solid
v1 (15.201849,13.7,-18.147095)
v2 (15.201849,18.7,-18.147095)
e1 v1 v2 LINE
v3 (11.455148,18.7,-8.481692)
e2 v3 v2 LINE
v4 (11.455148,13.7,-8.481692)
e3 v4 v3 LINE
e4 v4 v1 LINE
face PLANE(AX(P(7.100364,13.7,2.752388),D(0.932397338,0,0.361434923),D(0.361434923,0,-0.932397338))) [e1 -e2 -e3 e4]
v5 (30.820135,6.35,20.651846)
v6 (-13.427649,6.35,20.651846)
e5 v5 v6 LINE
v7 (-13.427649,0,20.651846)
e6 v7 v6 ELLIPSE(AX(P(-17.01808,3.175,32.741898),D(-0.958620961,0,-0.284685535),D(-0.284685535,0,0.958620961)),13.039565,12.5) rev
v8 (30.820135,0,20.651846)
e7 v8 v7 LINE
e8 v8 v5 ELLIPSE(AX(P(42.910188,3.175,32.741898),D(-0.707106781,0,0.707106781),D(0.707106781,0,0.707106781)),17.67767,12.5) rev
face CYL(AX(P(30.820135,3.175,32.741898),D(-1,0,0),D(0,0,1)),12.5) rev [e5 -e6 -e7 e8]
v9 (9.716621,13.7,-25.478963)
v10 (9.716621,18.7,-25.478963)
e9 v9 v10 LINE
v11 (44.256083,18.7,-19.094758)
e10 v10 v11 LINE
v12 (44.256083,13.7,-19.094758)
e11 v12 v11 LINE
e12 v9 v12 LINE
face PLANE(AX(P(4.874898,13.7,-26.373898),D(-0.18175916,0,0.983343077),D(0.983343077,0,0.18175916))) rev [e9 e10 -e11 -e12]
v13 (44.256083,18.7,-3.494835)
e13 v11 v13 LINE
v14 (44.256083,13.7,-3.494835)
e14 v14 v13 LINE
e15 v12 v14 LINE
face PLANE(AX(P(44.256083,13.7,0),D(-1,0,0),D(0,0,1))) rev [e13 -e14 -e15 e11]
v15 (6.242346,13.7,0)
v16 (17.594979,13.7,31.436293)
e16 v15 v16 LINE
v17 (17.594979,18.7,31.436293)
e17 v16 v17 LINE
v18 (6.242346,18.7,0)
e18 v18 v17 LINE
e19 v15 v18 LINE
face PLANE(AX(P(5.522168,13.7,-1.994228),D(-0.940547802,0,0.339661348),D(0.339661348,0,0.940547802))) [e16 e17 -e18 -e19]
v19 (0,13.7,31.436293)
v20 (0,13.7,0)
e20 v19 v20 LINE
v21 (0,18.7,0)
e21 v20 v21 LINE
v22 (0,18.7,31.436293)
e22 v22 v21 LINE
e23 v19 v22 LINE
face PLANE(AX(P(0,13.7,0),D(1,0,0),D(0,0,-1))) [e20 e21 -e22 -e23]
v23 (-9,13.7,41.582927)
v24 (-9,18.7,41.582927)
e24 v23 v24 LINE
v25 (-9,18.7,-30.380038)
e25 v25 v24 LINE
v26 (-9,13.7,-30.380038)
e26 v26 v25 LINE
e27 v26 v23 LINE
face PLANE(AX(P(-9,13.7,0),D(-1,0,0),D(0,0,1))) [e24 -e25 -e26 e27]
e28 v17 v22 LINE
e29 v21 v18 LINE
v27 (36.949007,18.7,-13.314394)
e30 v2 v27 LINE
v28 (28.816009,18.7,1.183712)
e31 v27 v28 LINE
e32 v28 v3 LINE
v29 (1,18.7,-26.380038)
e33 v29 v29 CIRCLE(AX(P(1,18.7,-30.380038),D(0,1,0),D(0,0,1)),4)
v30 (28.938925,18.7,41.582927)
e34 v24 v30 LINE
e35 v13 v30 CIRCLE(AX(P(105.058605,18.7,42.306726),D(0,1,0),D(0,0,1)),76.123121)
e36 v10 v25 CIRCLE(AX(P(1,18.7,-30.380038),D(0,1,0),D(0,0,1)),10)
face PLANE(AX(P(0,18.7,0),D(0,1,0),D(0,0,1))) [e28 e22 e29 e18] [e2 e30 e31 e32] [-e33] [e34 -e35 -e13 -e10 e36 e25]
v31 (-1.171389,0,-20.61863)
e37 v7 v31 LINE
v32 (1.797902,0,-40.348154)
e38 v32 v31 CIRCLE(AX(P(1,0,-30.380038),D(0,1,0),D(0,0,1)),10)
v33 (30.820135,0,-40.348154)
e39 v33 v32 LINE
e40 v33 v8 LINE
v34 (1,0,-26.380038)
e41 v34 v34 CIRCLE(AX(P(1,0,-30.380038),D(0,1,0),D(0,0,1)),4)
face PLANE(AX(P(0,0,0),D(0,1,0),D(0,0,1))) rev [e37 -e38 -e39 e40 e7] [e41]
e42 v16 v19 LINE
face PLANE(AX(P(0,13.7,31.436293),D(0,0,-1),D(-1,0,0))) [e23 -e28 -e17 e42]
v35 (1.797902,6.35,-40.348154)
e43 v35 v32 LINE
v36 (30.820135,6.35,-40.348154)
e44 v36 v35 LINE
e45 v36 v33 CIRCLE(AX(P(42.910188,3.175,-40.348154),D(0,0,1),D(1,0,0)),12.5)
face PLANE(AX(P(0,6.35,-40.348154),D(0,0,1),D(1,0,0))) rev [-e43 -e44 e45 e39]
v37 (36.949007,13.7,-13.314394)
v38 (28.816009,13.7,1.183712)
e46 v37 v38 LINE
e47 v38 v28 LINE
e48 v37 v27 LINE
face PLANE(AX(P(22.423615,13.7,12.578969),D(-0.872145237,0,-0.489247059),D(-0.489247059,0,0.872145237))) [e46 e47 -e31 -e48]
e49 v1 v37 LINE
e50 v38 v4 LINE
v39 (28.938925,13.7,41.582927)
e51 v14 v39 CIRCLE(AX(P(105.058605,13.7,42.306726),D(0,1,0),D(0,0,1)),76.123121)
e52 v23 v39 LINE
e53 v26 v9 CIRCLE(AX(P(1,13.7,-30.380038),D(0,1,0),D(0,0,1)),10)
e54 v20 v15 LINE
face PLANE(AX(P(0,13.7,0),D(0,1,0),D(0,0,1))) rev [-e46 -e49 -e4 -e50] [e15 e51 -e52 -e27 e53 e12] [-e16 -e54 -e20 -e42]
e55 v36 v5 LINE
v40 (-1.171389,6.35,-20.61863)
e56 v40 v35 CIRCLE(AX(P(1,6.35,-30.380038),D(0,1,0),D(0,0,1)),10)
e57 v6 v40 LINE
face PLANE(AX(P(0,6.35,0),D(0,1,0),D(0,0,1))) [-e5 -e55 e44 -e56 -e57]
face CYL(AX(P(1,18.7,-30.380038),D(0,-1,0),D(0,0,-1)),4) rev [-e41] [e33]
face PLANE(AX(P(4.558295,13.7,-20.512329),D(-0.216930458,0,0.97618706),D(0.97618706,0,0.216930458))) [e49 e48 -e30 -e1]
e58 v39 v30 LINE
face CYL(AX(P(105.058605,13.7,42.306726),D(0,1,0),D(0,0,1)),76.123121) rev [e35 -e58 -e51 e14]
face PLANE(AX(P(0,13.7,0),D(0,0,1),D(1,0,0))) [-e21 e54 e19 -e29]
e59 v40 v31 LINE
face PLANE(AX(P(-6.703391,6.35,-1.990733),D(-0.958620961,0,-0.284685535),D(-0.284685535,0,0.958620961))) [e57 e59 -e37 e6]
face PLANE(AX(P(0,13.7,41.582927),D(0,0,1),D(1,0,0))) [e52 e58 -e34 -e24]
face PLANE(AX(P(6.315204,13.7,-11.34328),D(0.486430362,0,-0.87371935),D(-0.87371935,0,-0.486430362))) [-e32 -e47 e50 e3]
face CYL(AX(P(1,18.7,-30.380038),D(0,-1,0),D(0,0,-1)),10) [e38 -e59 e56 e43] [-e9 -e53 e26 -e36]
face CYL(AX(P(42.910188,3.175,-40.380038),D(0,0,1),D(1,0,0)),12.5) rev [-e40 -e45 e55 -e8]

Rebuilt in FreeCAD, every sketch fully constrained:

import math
import FreeCAD as App
import Part
import Sketcher
Q = App.Units.Quantity


def add_polygon(sketch, points):
    """Adds a closed chain of lines whose ends are joined by coincident constraints."""
    first, n = sketch.GeometryCount, len(points)
    for a, b in zip(points, points[1:] + points[:1]):
        sketch.addGeometry(Part.LineSegment(App.Vector(*a, 0), App.Vector(*b, 0)), False)
    for i in range(n):
        sketch.addConstraint(Sketcher.Constraint("Coincident", first + i, 2, first + (i + 1) % n, 1))

doc = App.newDocument("Part")
body = doc.addObject("PartDesign::Body", "Body")

sketch1 = doc.addObject("Sketcher::SketchObject", "Sketch")
body.addObject(sketch1)
sketch1.AttachmentSupport = (doc.XZ_Plane, [""])
sketch1.MapMode = "FlatFace"
sketch1.addGeometry(Part.LineSegment(App.Vector(31, 21, 0), App.Vector(31, -40, 0)), False)
sketch1.addGeometry(Part.LineSegment(App.Vector(31, -40, 0), App.Vector(2, -40, 0)), False)
sketch1.addGeometry(Part.ArcOfCircle(Part.Circle(App.Vector(1, -30, 0), App.Vector(0, 0, 1), 10), math.radians(-85), math.radians(0)), False)
sketch1.addGeometry(Part.ArcOfCircle(Part.Circle(App.Vector(1, -30, 0), App.Vector(0, 0, 1), 10), math.radians(0), math.radians(103)), False)
sketch1.addGeometry(Part.LineSegment(App.Vector(-1, -21, 0), App.Vector(-13, 21, 0)), False)
sketch1.addGeometry(Part.LineSegment(App.Vector(-13, 21, 0), App.Vector(31, 21, 0)), False)
sketch1.addConstraint(Sketcher.Constraint("Coincident", 0, 2, 1, 1))
sketch1.addConstraint(Sketcher.Constraint("Coincident", 1, 2, 2, 1))
sketch1.addConstraint(Sketcher.Constraint("Tangent", 2, 2, 3, 1))
sketch1.addConstraint(Sketcher.Constraint("Coincident", 3, 2, 4, 1))
sketch1.addConstraint(Sketcher.Constraint("Coincident", 4, 2, 5, 1))
sketch1.addConstraint(Sketcher.Constraint("Coincident", 5, 2, 0, 1))
sketch1.addConstraint(Sketcher.Constraint("Vertical", 0))
sketch1.addConstraint(Sketcher.Constraint("Horizontal", 1))
sketch1.addConstraint(Sketcher.Constraint("Horizontal", 5))
sketch1.addConstraint(Sketcher.Constraint("Equal", 2, 3))
sketch1.addConstraint(Sketcher.Constraint("Horizontal", 3, 3, 2, 2))
sketch1.addConstraint(Sketcher.Constraint("Radius", 2, Q("10 mm")))
sketch1.addConstraint(Sketcher.Constraint("DistanceY", 0, 2, 0, 1, Q("61 mm")))
sketch1.addConstraint(Sketcher.Constraint("DistanceX", -1, 1, 2, 3, Q("1 mm")))
sketch1.addConstraint(Sketcher.Constraint("DistanceX", -1, 1, 1, 2, Q("1.797902 mm")))
sketch1.addConstraint(Sketcher.Constraint("DistanceX", 1, 2, 1, 1, Q("29.022233 mm")))
sketch1.addConstraint(Sketcher.Constraint("DistanceX", 5, 1, 5, 2, Q("44.247784 mm")))
sketch1.addConstraint(Sketcher.Constraint("DistanceX", 3, 2, -1, 1, Q("1.171389 mm")))
sketch1.addConstraint(Sketcher.Constraint("DistanceY", 3, 2, -1, 1, Q("20.61863 mm")))
pad1 = doc.addObject("PartDesign::Pad", "Pad")
body.addObject(pad1)
pad1.Profile = sketch1
pad1.Length = 6.35
pad1.Reversed = True

sketch2 = doc.addObject("Sketcher::SketchObject", "Sketch001")
body.addObject(sketch2)
sketch2.AttachmentSupport = (doc.XZ_Plane, [""])
sketch2.MapMode = "FlatFace"
sketch2.addGeometry(Part.Circle(App.Vector(1, -30.4, 0), App.Vector(0, 0, 1), 10), False)
sketch2.addGeometry(Part.Circle(App.Vector(1, -30.4, 0), App.Vector(0, 0, 1), 4), False)
sketch2.addConstraint(Sketcher.Constraint("Coincident", 1, 3, 0, 3))
sketch2.addConstraint(Sketcher.Constraint("Diameter", 0, Q("20 mm")))
sketch2.addConstraint(Sketcher.Constraint("Diameter", 1, Q("8 mm")))
sketch2.addConstraint(Sketcher.Constraint("DistanceX", -1, 1, 0, 3, Q("1 mm")))
sketch2.addConstraint(Sketcher.Constraint("DistanceY", 0, 3, -1, 1, Q("30.380038 mm")))
pad2 = doc.addObject("PartDesign::Pad", "Pad001")
body.addObject(pad2)
pad2.Profile = sketch2
pad2.Length = 18.7
pad2.Reversed = True

sketch3 = doc.addObject("Sketcher::SketchObject", "Sketch002")
body.addObject(sketch3)
sketch3.AttachmentSupport = (doc.XY_Plane, [""])
sketch3.MapMode = "FlatFace"
sketch3.addGeometry(Part.Circle(App.Vector(43, 3, 0), App.Vector(0, 0, 1), 12), False)
sketch3.addConstraint(Sketcher.Constraint("Diameter", 0, Q("25 mm")))
sketch3.addConstraint(Sketcher.Constraint("DistanceY", -1, 1, 0, 3, Q("3.175 mm")))
sketch3.addConstraint(Sketcher.Constraint("DistanceX", -1, 1, 0, 3, Q("42.910188 mm")))
pocket1 = doc.addObject("PartDesign::Pocket", "Pocket")
body.addObject(pocket1)
pocket1.Profile = sketch3
pocket1.Type = "ThroughAll"
pocket1.Midplane = True

sketch4 = doc.addObject("Sketcher::SketchObject", "Sketch003")
body.addObject(sketch4)
sketch4.AttachmentSupport = (doc.YZ_Plane, [""])
sketch4.MapMode = "FlatFace"
sketch4.addGeometry(Part.Circle(App.Vector(3, 33, 0), App.Vector(0, 0, 1), 12), False)
sketch4.addConstraint(Sketcher.Constraint("Diameter", 0, Q("25 mm")))
sketch4.addConstraint(Sketcher.Constraint("DistanceX", -1, 1, 0, 3, Q("3.175 mm")))
sketch4.addConstraint(Sketcher.Constraint("DistanceY", -1, 1, 0, 3, Q("32.741898 mm")))
pocket2 = doc.addObject("PartDesign::Pocket", "Pocket001")
body.addObject(pocket2)
pocket2.Profile = sketch4
pocket2.Type = "ThroughAll"
pocket2.Midplane = True

sketch5 = doc.addObject("Sketcher::SketchObject", "Sketch004")
body.addObject(sketch5)
sketch5.AttachmentSupport = (doc.XZ_Plane, [""])
sketch5.MapMode = "FlatFace"
sketch5.AttachmentOffset = App.Placement(App.Vector(0, 0, -13.7), App.Rotation())
sketch5.addGeometry(Part.ArcOfCircle(Part.Circle(App.Vector(1, -30, 0), App.Vector(0, 0, 1), 10), math.radians(29), math.radians(180)), False)
sketch5.addGeometry(Part.LineSegment(App.Vector(-9, -30, 0), App.Vector(-9, 42, 0)), False)
sketch5.addGeometry(Part.LineSegment(App.Vector(-9, 42, 0), App.Vector(29, 42, 0)), False)
sketch5.addGeometry(Part.ArcOfCircle(Part.Circle(App.Vector(105, 42, 0), App.Vector(0, 0, 1), 76), math.radians(-179), math.radians(-143)), False)
sketch5.addGeometry(Part.LineSegment(App.Vector(44, -3, 0), App.Vector(44, -19, 0)), False)
sketch5.addGeometry(Part.LineSegment(App.Vector(44, -19, 0), App.Vector(10, -25, 0)), False)
add_polygon(sketch5, [(6, 0), (18, 31), (0, 31), (0, 0)])
add_polygon(sketch5, [(37, -13), (29, 1), (11, -8), (15, -18)])
sketch5.addConstraint(Sketcher.Constraint("Tangent", 0, 2, 1, 1))
sketch5.addConstraint(Sketcher.Constraint("Coincident", 1, 2, 2, 1))
sketch5.addConstraint(Sketcher.Constraint("Coincident", 2, 2, 3, 1))
sketch5.addConstraint(Sketcher.Constraint("Coincident", 3, 2, 4, 1))
sketch5.addConstraint(Sketcher.Constraint("Coincident", 4, 2, 5, 1))
sketch5.addConstraint(Sketcher.Constraint("Coincident", 5, 2, 0, 1))
sketch5.addConstraint(Sketcher.Constraint("Vertical", 1))
sketch5.addConstraint(Sketcher.Constraint("Horizontal", 2))
sketch5.addConstraint(Sketcher.Constraint("Vertical", 4))
sketch5.addConstraint(Sketcher.Constraint("Horizontal", 7))
sketch5.addConstraint(Sketcher.Constraint("Vertical", 8))
sketch5.addConstraint(Sketcher.Constraint("Horizontal", 9))
sketch5.addConstraint(Sketcher.Constraint("Coincident", 8, 2, -1, 1))
sketch5.addConstraint(Sketcher.Constraint("Radius", 0, Q("10 mm")))
sketch5.addConstraint(Sketcher.Constraint("DistanceX", -1, 1, 0, 3, Q("1 mm")))
sketch5.addConstraint(Sketcher.Constraint("Radius", 3, Q("76.123121 mm")))
sketch5.addConstraint(Sketcher.Constraint("Distance", 10, Q("16.623499 mm")))
sketch5.addConstraint(Sketcher.Constraint("DistanceX", 7, 2, 7, 1, Q("17.594979 mm")))
sketch5.addConstraint(Sketcher.Constraint("DistanceY", 1, 2, 3, 3, Q("0.7238 mm")))
sketch5.addConstraint(Sketcher.Constraint("DistanceX", 9, 2, 11, 2, Q("5.212802 mm")))
sketch5.addConstraint(Sketcher.Constraint("DistanceX", 11, 2, 12, 2, Q("3.746701 mm")))
sketch5.addConstraint(Sketcher.Constraint("DistanceY", 12, 2, 13, 2, Q("4.832702 mm")))
sketch5.addConstraint(Sketcher.Constraint("DistanceY", 13, 2, 11, 2, Q("4.832702 mm")))
sketch5.addConstraint(Sketcher.Constraint("Distance", 5, Q("35.124529 mm")))
sketch5.addConstraint(Sketcher.Constraint("DistanceX", 2, 1, 2, 2, Q("37.938924 mm")))
sketch5.addConstraint(Sketcher.Constraint("DistanceX", 9, 1, 9, 2, Q("6.242346 mm")))
sketch5.addConstraint(Sketcher.Constraint("DistanceY", 1, 1, 1, 2, Q("71.962964 mm")))
sketch5.addConstraint(Sketcher.Constraint("DistanceY", 4, 2, 4, 1, Q("15.599924 mm")))
sketch5.addConstraint(Sketcher.Constraint("DistanceY", 8, 2, 8, 1, Q("31.436293 mm")))
sketch5.addConstraint(Sketcher.Constraint("DistanceY", 4, 2, -1, 1, Q("19.094758 mm")))
sketch5.addConstraint(Sketcher.Constraint("DistanceX", -1, 1, 5, 2, Q("9.716621 mm")))
sketch5.addConstraint(Sketcher.Constraint("DistanceX", -1, 1, 10, 2, Q("28.816009 mm")))
sketch5.addConstraint(Sketcher.Constraint("DistanceY", -1, 1, 10, 2, Q("1.183712 mm")))
sketch5.addConstraint(Sketcher.Constraint("DistanceY", 11, 2, -1, 1, Q("8.481692 mm")))
pad3 = doc.addObject("PartDesign::Pad", "Pad002")
body.addObject(pad3)
pad3.Profile = sketch5
pad3.Length = 5
pad3.Reversed = True

doc.recompute()
